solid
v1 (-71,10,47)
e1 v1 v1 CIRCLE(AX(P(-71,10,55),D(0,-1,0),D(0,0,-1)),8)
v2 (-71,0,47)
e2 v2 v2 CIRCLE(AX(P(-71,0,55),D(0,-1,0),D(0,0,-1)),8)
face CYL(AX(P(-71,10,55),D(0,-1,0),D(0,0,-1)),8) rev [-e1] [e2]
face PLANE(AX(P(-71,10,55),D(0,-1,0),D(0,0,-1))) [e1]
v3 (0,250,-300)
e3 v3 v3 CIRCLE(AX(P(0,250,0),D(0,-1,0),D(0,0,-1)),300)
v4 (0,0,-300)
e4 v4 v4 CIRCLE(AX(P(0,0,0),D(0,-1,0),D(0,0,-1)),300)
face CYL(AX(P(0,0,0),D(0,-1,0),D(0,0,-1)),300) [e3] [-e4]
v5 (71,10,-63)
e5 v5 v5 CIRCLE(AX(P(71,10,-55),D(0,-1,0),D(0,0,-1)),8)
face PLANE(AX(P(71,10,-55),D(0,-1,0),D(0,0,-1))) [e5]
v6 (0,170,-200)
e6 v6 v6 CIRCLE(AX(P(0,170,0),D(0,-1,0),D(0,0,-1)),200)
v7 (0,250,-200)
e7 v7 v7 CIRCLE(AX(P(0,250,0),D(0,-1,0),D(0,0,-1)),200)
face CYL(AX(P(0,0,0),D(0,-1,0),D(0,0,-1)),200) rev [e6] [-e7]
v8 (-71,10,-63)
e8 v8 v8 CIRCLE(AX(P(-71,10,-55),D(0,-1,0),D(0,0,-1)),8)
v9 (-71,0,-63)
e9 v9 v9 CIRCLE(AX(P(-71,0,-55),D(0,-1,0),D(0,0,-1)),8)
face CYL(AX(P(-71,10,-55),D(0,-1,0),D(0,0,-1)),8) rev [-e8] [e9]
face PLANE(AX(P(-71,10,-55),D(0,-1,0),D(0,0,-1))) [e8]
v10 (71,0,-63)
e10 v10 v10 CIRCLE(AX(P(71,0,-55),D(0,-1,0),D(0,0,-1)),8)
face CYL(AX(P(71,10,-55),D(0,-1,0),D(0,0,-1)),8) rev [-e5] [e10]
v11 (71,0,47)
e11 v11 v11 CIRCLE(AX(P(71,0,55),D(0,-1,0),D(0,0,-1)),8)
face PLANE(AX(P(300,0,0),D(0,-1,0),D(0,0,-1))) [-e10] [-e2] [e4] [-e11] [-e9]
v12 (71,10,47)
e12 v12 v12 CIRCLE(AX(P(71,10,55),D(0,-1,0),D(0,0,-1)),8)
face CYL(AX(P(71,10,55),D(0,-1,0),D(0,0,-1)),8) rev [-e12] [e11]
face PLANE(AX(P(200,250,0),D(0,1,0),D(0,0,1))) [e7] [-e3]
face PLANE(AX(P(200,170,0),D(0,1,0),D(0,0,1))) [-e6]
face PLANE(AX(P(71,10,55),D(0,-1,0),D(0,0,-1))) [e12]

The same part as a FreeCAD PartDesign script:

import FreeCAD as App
import Part
import Sketcher
from FreeCAD import Vector


def add_polygon(sketch, points):
    """Adds a closed chain of lines whose ends are joined by coincident constraints."""
    first, n = sketch.GeometryCount, len(points)
    for a, b in zip(points, points[1:] + points[:1]):
        sketch.addGeometry(Part.LineSegment(App.Vector(*a, 0), App.Vector(*b, 0)), False)
    for i in range(n):
        sketch.addConstraint(Sketcher.Constraint("Coincident", first + i, 2, first + (i + 1) % n, 1))

doc = App.newDocument("Part")
body = doc.addObject("PartDesign::Body", "Body")

# Sketch on XY plane
sketch1 = doc.addObject("Sketcher::SketchObject", "Sketch")
body.addObject(sketch1)
sketch1.AttachmentSupport = (doc.XY_Plane, [""])
sketch1.MapMode = "FlatFace"
add_polygon(sketch1, [(300, 250), (200, 250), (200, 170), (0, 170), (0, 0), (300, 0)])  # lines 0-5
sketch1.addConstraint([
    Sketcher.Constraint("Horizontal", 0),
    Sketcher.Constraint("Vertical", 1),
    Sketcher.Constraint("Horizontal", 2),
    Sketcher.Constraint("Vertical", 3),
    Sketcher.Constraint("Horizontal", 4),
    Sketcher.Constraint("Vertical", 5),
    Sketcher.Constraint("Coincident", 3, 2, -1, 1),
    Sketcher.Constraint("DistanceX", 0, 2, 0, 1, 100.0),
    Sketcher.Constraint("DistanceX", 2, 2, 2, 1, 200.0),
    Sketcher.Constraint("DistanceY", 1, 2, 1, 1, 80.0),
    Sketcher.Constraint("DistanceY", 3, 2, 3, 1, 170.0),
])
revolution = doc.addObject("PartDesign::Revolution", "Revolution")
body.addObject(revolution)
revolution.Profile = sketch1
revolution.ReferenceAxis = (sketch1, ["V_Axis"])
revolution.Angle = 360

# Sketch on XZ plane
sketch2 = doc.addObject("Sketcher::SketchObject", "Sketch001")
body.addObject(sketch2)
sketch2.AttachmentSupport = (doc.XZ_Plane, [""])
sketch2.MapMode = "FlatFace"
sketch2.addGeometry([
    Part.Circle(Vector(-71, 55, 0), Vector(0, 0, 1), 8),
    Part.Circle(Vector(71, 55, 0), Vector(0, 0, 1), 8),
    Part.Circle(Vector(71, -55, 0), Vector(0, 0, 1), 8),
    Part.Circle(Vector(-71, -55, 0), Vector(0, 0, 1), 8),
], False)
sketch2.addConstraint([
    Sketcher.Constraint("Equal", 0, 1),
    Sketcher.Constraint("Equal", 1, 2),
    Sketcher.Constraint("Equal", 2, 3),
    Sketcher.Constraint("Symmetric", 0, 3, 2, 3, -1, 1),
    Sketcher.Constraint("Symmetric", 1, 3, 3, 3, -1, 1),
    Sketcher.Constraint("Symmetric", 0, 3, 1, 3, -2),
    Sketcher.Constraint("Diameter", 0, 16.0),
    Sketcher.Constraint("DistanceX", 0, 3, -1, 1, 71.0),
    Sketcher.Constraint("DistanceY", -1, 1, 0, 3, 55.0),
])
pocket1 = doc.addObject("PartDesign::Pocket", "Pocket")
body.addObject(pocket1)
pocket1.Profile = sketch2
pocket1.Length = 10

doc.recompute()
